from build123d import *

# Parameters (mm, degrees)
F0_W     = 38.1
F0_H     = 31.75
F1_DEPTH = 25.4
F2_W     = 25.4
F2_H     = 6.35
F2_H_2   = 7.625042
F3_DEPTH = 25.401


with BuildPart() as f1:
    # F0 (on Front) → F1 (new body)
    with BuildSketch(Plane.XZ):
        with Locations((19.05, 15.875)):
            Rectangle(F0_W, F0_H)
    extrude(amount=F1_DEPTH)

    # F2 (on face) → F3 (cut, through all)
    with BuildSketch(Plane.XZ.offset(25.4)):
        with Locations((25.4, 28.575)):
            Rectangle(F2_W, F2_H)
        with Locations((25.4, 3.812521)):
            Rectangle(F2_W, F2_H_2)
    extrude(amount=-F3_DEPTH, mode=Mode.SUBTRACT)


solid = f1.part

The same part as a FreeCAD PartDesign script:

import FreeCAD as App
import Part
import Sketcher
from FreeCAD import Vector
Q = App.Units.Quantity

doc = App.newDocument("Part")
body = doc.addObject("PartDesign::Body", "Body")

# Sketch on XZ plane
sketch1 = body.newObject("Sketcher::SketchObject", "Sketch")
sketch1.AttachmentSupport = (doc.getObject("XZ_Plane"), [""])
sketch1.MapMode = "FlatFace"
sketch1.addGeometry([
    Part.LineSegment(Vector(0, 32, 0), Vector(0, 0, 0)),
    Part.LineSegment(Vector(0, 0, 0), Vector(38, 0, 0)),
    Part.LineSegment(Vector(38, 0, 0), Vector(38, 32, 0)),
    Part.LineSegment(Vector(38, 32, 0), Vector(0, 32, 0)),
], False)
sketch1.addConstraint([
    Sketcher.Constraint("Coincident", 0, 2, 1, 1),
    Sketcher.Constraint("Coincident", 1, 2, 2, 1),
    Sketcher.Constraint("Coincident", 2, 2, 3, 1),
    Sketcher.Constraint("Coincident", 3, 2, 0, 1),
    Sketcher.Constraint("Vertical", 0),
    Sketcher.Constraint("Horizontal", 1),
    Sketcher.Constraint("Vertical", 2),
    Sketcher.Constraint("Horizontal", 3),
    Sketcher.Constraint("Coincident", 0, 2, -1, 1),
    Sketcher.Constraint("DistanceX", 1, 1, 1, 2, Q("1.5 in")),
    Sketcher.Constraint("DistanceY", 0, 2, 0, 1, Q("1.25 in")),
])
pad1 = body.newObject("PartDesign::Pad", "Pad")
pad1.Profile = sketch1
pad1.Length = Q("1 in")

# Sketch on XZ plane
sketch2 = body.newObject("Sketcher::SketchObject", "Sketch001")
sketch2.AttachmentSupport = (doc.getObject("XZ_Plane"), [""])
sketch2.MapMode = "FlatFace"
sketch2.AttachmentOffset = App.Placement(Vector(0, 0, 1 * 25.4), App.Rotation())
sketch2.addGeometry([
    Part.LineSegment(Vector(13, 32, 0), Vector(13, 25, 0)),  # 0
    Part.LineSegment(Vector(13, 25, 0), Vector(38, 25, 0)),  # 1
    Part.LineSegment(Vector(38, 25, 0), Vector(38, 32, 0)),  # 2
    Part.LineSegment(Vector(38, 32, 0), Vector(13, 32, 0)),  # 3
    Part.LineSegment(Vector(13, 8, 0), Vector(13, 0, 0)),  # 4
    Part.LineSegment(Vector(13, 0, 0), Vector(38, 0, 0)),  # 5
    Part.LineSegment(Vector(38, 0, 0), Vector(38, 8, 0)),  # 6
    Part.LineSegment(Vector(38, 8, 0), Vector(13, 8, 0)),  # 7
], False)
sketch2.addConstraint([
    Sketcher.Constraint("Coincident", 0, 2, 1, 1),
    Sketcher.Constraint("Coincident", 1, 2, 2, 1),
    Sketcher.Constraint("Coincident", 2, 2, 3, 1),
    Sketcher.Constraint("Coincident", 3, 2, 0, 1),
    Sketcher.Constraint("Coincident", 4, 2, 5, 1),
    Sketcher.Constraint("Coincident", 5, 2, 6, 1),
    Sketcher.Constraint("Coincident", 6, 2, 7, 1),
    Sketcher.Constraint("Coincident", 7, 2, 4, 1),
    Sketcher.Constraint("Vertical", 0),
    Sketcher.Constraint("Horizontal", 1),
    Sketcher.Constraint("Vertical", 2),
    Sketcher.Constraint("Horizontal", 3),
    Sketcher.Constraint("Vertical", 4),
    Sketcher.Constraint("Horizontal", 5),
    Sketcher.Constraint("Vertical", 6),
    Sketcher.Constraint("Horizontal", 7),
    Sketcher.Constraint("PointOnObject", 4, 2, -1),
    Sketcher.Constraint("Vertical", 3, 2, 4, 2),
    Sketcher.Constraint("Vertical", 2, 2, 5, 2),
    Sketcher.Constraint("DistanceX", 1, 1, 1, 2, Q("1 in")),
    Sketcher.Constraint("DistanceY", -1, 1, 0, 2, Q("1 in")),
    Sketcher.Constraint("DistanceY", 0, 2, 0, 1, Q("0.25 in")),
    Sketcher.Constraint("DistanceX", -1, 1, 0, 2, Q("0.5 in")),
    Sketcher.Constraint("DistanceY", 4, 2, 4, 1, 7.625042),
])
pocket1 = body.newObject("PartDesign::Pocket", "Pocket")
pocket1.Profile = sketch2
pocket1.Type = "ThroughAll"

doc.recompute()
